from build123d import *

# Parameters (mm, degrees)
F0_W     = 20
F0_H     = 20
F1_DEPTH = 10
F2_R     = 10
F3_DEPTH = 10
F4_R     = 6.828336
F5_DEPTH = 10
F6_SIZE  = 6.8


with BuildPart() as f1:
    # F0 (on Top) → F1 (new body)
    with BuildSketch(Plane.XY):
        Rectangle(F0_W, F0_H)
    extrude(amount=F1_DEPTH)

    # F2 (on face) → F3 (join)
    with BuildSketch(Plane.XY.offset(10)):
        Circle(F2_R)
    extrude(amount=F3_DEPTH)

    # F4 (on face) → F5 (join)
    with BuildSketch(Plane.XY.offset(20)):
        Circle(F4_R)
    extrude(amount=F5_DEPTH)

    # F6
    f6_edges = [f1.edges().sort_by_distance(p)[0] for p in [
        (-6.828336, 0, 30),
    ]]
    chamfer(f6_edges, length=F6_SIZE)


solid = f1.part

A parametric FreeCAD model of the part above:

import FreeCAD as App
import Part
import Sketcher

V = App.Vector


def edges_at(feature, points):
    """Names of the edges that pass closest to the given points."""
    edges = feature.Shape.Edges
    near = lambda p: min(range(len(edges)), key=lambda i: edges[i].distToShape(Part.Vertex(*p))[0])
    return sorted({f"Edge{near(p) + 1}" for p in points})

doc = App.newDocument("Part")
body = doc.addObject("PartDesign::Body", "Body")

sketch1 = doc.addObject("Sketcher::SketchObject", "Sketch")
body.addObject(sketch1)
sketch1.AttachmentSupport = (doc.XY_Plane, [""])
sketch1.MapMode = "FlatFace"
sketch1.addGeometry([
    Part.LineSegment(V(-10, 10, 0), V(-10, -10, 0)),
    Part.LineSegment(V(-10, -10, 0), V(10, -10, 0)),
    Part.LineSegment(V(10, -10, 0), V(10, 10, 0)),
    Part.LineSegment(V(10, 10, 0), V(-10, 10, 0)),
], False)
sketch1.addConstraint([
    Sketcher.Constraint("Coincident", 0, 2, 1, 1),
    Sketcher.Constraint("Coincident", 1, 2, 2, 1),
    Sketcher.Constraint("Coincident", 2, 2, 3, 1),
    Sketcher.Constraint("Coincident", 3, 2, 0, 1),
    Sketcher.Constraint("Vertical", 0),
    Sketcher.Constraint("Horizontal", 1),
    Sketcher.Constraint("Vertical", 2),
    Sketcher.Constraint("Horizontal", 3),
    Sketcher.Constraint("Symmetric", 0, 2, 2, 2, -1, 1),
    Sketcher.Constraint("Equal", 3, 0),
    Sketcher.Constraint("DistanceX", 1, 1, 1, 2, 20.0),
])
pad1 = doc.addObject("PartDesign::Pad", "Pad")
body.addObject(pad1)
pad1.Profile = sketch1
pad1.Length = 10

sketch2 = doc.addObject("Sketcher::SketchObject", "Sketch001")
body.addObject(sketch2)
sketch2.AttachmentSupport = (doc.XY_Plane, [""])
sketch2.MapMode = "FlatFace"
sketch2.AttachmentOffset = App.Placement(V(0, 0, 10), App.Rotation())
sketch2.addGeometry(Part.Circle(V(0, 0, 0), V(0, 0, 1), 10), False)
sketch2.addConstraint([
    Sketcher.Constraint("Coincident", 0, 3, -1, 1),
    Sketcher.Constraint("Diameter", 0, 20.0),
])
pad2 = doc.addObject("PartDesign::Pad", "Pad001")
body.addObject(pad2)
pad2.Profile = sketch2
pad2.Length = 10

sketch3 = doc.addObject("Sketcher::SketchObject", "Sketch002")
body.addObject(sketch3)
sketch3.AttachmentSupport = (doc.XY_Plane, [""])
sketch3.MapMode = "FlatFace"
sketch3.AttachmentOffset = App.Placement(V(0, 0, 20), App.Rotation())
sketch3.addGeometry(Part.Circle(V(0, 0, 0), V(0, 0, 1), 7), False)
sketch3.addConstraint([
    Sketcher.Constraint("Coincident", 0, 3, -1, 1),
    Sketcher.Constraint("Diameter", 0, 13.656672),
])
pad3 = doc.addObject("PartDesign::Pad", "Pad002")
body.addObject(pad3)
pad3.Profile = sketch3
pad3.Length = 10
doc.recompute()

chamfer = doc.addObject("PartDesign::Chamfer", "Chamfer")
body.addObject(chamfer)
chamfer.Base = (pad3, edges_at(pad3, [(-6.828, 0, 30)]))
chamfer.Size = 6.8

doc.recompute()
